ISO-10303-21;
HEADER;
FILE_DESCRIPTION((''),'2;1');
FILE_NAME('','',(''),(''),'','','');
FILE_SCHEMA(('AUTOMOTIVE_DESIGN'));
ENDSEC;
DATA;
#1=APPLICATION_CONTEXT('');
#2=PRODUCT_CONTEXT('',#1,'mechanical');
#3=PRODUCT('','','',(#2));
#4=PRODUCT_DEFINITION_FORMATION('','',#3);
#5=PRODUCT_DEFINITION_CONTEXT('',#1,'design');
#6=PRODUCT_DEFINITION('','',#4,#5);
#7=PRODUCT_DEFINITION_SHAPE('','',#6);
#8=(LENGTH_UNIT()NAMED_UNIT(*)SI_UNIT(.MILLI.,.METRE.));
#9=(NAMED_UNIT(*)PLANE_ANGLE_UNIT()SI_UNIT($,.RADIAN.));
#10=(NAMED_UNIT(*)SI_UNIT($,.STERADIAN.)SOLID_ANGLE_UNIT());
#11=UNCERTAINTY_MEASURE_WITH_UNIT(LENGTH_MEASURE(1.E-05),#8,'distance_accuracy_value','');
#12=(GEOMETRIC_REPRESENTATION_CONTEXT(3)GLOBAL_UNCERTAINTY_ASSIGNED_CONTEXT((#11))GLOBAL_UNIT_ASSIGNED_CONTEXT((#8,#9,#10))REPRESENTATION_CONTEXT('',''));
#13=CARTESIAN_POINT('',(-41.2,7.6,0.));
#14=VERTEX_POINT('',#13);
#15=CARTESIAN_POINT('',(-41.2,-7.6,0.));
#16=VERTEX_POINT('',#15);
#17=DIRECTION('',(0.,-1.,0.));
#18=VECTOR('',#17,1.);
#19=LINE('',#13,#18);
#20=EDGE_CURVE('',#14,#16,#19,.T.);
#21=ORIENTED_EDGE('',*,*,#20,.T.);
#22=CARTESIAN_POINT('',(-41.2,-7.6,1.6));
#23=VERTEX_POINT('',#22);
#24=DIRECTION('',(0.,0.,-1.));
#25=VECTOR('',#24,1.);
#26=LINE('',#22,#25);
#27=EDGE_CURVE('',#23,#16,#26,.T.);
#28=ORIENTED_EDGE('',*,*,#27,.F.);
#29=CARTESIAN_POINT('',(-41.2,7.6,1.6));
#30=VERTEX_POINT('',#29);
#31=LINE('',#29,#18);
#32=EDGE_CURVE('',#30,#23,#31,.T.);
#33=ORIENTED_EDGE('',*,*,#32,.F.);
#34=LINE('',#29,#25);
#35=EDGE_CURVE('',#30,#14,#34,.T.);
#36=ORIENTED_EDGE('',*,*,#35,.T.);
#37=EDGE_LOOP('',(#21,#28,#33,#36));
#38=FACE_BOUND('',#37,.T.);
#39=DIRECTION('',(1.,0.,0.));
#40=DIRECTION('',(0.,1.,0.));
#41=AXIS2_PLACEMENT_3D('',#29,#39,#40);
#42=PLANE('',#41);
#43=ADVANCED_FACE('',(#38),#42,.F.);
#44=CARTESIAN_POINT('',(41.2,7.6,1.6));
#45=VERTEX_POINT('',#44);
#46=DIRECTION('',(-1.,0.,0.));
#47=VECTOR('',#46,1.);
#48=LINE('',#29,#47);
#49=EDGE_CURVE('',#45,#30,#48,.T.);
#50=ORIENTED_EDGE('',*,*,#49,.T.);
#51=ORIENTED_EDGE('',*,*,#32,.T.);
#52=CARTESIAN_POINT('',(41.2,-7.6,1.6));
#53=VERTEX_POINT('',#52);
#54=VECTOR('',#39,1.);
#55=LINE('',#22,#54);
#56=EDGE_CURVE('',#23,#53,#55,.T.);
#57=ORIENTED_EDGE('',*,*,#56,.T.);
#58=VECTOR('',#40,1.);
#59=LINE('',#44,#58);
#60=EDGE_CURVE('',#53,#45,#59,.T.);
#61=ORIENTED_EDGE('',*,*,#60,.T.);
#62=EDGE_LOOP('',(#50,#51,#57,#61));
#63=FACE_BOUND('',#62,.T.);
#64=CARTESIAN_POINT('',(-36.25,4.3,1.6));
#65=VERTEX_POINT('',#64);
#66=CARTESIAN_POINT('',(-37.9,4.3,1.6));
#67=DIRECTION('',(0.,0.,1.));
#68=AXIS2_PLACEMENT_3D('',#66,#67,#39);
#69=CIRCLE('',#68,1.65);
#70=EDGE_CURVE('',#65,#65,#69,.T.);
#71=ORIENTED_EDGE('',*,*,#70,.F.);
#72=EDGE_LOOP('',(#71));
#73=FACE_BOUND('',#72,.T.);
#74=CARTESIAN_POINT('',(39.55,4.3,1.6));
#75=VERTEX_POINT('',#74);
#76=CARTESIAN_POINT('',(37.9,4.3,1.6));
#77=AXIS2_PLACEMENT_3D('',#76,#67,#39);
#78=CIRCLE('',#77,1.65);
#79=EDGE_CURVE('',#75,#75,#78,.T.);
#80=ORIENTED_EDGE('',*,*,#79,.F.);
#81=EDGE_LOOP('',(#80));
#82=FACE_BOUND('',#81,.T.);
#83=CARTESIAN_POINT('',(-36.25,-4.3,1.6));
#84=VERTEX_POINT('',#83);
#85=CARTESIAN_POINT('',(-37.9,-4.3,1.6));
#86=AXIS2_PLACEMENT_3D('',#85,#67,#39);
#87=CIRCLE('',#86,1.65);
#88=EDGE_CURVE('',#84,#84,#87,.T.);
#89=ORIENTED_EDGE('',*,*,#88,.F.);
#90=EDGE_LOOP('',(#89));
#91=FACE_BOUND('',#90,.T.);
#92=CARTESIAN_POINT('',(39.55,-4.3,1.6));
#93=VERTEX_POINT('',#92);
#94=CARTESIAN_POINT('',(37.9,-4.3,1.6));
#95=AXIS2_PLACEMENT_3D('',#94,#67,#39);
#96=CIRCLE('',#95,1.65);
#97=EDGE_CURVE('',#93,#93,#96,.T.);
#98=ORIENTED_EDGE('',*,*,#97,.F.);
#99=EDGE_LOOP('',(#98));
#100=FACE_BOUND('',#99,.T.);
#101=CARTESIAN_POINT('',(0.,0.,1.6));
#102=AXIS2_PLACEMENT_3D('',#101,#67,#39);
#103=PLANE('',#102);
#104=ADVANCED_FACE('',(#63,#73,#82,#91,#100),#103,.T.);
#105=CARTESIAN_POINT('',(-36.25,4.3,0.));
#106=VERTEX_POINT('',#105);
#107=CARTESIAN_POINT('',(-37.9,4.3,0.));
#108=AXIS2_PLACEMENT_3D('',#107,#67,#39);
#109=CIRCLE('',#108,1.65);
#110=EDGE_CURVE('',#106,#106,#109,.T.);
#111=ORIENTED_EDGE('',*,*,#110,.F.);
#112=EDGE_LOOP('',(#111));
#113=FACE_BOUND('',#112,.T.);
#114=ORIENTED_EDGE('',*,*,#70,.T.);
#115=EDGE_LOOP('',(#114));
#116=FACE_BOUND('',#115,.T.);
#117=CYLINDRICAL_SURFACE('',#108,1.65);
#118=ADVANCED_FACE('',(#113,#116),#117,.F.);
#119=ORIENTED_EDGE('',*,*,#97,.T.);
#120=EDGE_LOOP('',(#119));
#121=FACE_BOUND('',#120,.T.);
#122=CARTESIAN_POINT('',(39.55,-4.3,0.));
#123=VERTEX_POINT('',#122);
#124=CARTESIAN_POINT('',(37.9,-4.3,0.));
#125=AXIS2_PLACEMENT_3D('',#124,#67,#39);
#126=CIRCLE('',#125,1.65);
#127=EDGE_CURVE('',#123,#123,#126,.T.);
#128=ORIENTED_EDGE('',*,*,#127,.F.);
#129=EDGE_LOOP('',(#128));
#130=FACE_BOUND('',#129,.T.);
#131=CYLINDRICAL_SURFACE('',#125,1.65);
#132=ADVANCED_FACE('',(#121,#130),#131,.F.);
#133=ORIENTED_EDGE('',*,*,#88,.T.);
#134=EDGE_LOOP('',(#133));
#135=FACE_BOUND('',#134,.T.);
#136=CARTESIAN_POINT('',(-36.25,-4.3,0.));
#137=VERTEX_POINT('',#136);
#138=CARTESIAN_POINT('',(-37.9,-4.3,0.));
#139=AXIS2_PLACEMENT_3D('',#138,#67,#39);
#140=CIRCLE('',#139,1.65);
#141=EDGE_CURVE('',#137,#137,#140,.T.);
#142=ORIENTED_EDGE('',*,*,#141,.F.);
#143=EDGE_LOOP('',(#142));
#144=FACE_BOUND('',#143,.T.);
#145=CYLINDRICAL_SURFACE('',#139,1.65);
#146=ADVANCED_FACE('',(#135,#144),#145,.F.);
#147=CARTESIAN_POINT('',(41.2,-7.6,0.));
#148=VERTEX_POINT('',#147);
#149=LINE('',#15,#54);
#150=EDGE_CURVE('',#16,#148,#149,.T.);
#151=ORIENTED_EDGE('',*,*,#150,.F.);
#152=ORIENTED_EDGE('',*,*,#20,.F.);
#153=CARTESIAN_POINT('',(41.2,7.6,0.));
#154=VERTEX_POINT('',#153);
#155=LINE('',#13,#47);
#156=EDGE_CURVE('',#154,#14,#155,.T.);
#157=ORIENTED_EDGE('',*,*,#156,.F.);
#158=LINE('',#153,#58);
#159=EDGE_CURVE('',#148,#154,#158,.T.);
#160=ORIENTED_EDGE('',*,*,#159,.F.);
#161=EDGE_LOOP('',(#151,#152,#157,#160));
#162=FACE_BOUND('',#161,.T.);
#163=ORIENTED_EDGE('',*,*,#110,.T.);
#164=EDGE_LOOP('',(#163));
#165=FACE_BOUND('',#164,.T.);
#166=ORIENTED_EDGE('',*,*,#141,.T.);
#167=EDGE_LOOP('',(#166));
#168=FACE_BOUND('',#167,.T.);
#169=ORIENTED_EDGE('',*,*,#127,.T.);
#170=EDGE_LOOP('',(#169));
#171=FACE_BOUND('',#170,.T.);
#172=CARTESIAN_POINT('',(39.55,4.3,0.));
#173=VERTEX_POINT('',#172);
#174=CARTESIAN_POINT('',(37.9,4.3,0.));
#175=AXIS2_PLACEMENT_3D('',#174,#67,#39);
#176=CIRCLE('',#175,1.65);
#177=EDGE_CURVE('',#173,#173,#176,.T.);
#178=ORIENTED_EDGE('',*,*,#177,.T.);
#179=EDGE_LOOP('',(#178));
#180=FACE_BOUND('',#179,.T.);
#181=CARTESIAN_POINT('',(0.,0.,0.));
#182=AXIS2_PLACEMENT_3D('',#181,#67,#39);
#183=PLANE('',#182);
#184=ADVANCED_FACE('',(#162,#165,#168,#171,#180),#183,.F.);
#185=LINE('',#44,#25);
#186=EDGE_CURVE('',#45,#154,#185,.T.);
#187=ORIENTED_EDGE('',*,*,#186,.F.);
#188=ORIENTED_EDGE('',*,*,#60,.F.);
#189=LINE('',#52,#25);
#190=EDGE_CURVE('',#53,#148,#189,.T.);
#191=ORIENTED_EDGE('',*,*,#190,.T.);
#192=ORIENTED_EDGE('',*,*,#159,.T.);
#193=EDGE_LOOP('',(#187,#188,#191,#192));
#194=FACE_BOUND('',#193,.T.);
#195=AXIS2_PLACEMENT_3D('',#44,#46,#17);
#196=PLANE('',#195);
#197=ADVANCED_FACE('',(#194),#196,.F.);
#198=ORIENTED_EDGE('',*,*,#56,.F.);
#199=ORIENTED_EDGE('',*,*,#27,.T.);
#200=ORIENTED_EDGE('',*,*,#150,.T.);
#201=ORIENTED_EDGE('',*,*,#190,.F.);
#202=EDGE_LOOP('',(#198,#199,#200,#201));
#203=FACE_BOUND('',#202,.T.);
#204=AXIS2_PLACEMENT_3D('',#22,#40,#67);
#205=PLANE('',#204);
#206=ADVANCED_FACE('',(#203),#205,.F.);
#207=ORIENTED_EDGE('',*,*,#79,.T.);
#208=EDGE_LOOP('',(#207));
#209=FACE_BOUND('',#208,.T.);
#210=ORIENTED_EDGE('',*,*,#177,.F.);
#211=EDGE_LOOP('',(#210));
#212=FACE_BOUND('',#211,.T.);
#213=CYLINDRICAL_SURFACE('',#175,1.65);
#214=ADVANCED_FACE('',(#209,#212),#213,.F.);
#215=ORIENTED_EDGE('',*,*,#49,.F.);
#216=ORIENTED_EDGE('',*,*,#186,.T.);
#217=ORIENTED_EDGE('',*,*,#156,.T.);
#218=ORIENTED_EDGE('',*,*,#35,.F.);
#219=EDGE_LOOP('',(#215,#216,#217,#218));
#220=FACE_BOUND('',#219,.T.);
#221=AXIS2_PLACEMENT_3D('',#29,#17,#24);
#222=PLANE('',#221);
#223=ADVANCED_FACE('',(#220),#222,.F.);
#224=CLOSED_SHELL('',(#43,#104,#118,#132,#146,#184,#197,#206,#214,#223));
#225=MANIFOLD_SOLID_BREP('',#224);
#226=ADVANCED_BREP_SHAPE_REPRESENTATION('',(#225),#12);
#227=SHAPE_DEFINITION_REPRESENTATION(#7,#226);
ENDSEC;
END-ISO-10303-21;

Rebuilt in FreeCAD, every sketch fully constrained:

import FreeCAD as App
import Part
import Sketcher
from FreeCAD import Vector


def add_polygon(sketch, points):
    """Adds a closed chain of lines whose ends are joined by coincident constraints."""
    first, n = sketch.GeometryCount, len(points)
    for a, b in zip(points, points[1:] + points[:1]):
        sketch.addGeometry(Part.LineSegment(App.Vector(*a, 0), App.Vector(*b, 0)), False)
    for i in range(n):
        sketch.addConstraint(Sketcher.Constraint("Coincident", first + i, 2, first + (i + 1) % n, 1))

doc = App.newDocument("Part")
body = doc.addObject("PartDesign::Body", "Body")

# Sketch on XY plane
sketch1 = doc.addObject("Sketcher::SketchObject", "Sketch")
body.addObject(sketch1)
sketch1.AttachmentSupport = (doc.XY_Plane, [""])
sketch1.MapMode = "FlatFace"
add_polygon(sketch1, [(-41.2, 7.6), (-41.2, -7.6), (41.2, -7.6), (41.2, 7.6)])  # lines 0-3
sketch1.addConstraint([
    Sketcher.Constraint("Vertical", 0),
    Sketcher.Constraint("Horizontal", 1),
    Sketcher.Constraint("Vertical", 2),
    Sketcher.Constraint("Horizontal", 3),
    Sketcher.Constraint("Symmetric", 0, 2, 2, 2, -1, 1),
    Sketcher.Constraint("DistanceX", 1, 1, 1, 2, 82.4),
    Sketcher.Constraint("DistanceY", 0, 2, 0, 1, 15.2),
])
pad1 = doc.addObject("PartDesign::Pad", "Pad")
body.addObject(pad1)
pad1.Profile = sketch1
pad1.Length = 1.6

# Sketch on XY plane
sketch2 = doc.addObject("Sketcher::SketchObject", "Sketch001")
body.addObject(sketch2)
sketch2.AttachmentSupport = (doc.XY_Plane, [""])
sketch2.MapMode = "FlatFace"
sketch2.AttachmentOffset = App.Placement(Vector(0, 0, 1.6), App.Rotation())
sketch2.addGeometry([
    Part.Circle(Vector(-37.9, 4.3, 0), Vector(0, 0, 1), 1.65),
    Part.Circle(Vector(-37.9, -4.3, 0), Vector(0, 0, 1), 1.65),
    Part.Circle(Vector(37.9, 4.3, 0), Vector(0, 0, 1), 1.65),
    Part.Circle(Vector(37.9, -4.3, 0), Vector(0, 0, 1), 1.65),
], False)
sketch2.addConstraint([
    Sketcher.Constraint("Equal", 0, 1),
    Sketcher.Constraint("Equal", 1, 2),
    Sketcher.Constraint("Equal", 2, 3),
    Sketcher.Constraint("Symmetric", 1, 3, 2, 3, -1, 1),
    Sketcher.Constraint("Symmetric", 0, 3, 3, 3, -1, 1),
    Sketcher.Constraint("Symmetric", 0, 3, 2, 3, -2),
    Sketcher.Constraint("Diameter", 0, 3.3),
    Sketcher.Constraint("DistanceX", 0, 3, -1, 1, 37.9),
    Sketcher.Constraint("DistanceY", -1, 1, 0, 3, 4.3),
])
pocket1 = doc.addObject("PartDesign::Pocket", "Pocket")
body.addObject(pocket1)
pocket1.Profile = sketch2
pocket1.Length = 1.6

doc.recompute()
